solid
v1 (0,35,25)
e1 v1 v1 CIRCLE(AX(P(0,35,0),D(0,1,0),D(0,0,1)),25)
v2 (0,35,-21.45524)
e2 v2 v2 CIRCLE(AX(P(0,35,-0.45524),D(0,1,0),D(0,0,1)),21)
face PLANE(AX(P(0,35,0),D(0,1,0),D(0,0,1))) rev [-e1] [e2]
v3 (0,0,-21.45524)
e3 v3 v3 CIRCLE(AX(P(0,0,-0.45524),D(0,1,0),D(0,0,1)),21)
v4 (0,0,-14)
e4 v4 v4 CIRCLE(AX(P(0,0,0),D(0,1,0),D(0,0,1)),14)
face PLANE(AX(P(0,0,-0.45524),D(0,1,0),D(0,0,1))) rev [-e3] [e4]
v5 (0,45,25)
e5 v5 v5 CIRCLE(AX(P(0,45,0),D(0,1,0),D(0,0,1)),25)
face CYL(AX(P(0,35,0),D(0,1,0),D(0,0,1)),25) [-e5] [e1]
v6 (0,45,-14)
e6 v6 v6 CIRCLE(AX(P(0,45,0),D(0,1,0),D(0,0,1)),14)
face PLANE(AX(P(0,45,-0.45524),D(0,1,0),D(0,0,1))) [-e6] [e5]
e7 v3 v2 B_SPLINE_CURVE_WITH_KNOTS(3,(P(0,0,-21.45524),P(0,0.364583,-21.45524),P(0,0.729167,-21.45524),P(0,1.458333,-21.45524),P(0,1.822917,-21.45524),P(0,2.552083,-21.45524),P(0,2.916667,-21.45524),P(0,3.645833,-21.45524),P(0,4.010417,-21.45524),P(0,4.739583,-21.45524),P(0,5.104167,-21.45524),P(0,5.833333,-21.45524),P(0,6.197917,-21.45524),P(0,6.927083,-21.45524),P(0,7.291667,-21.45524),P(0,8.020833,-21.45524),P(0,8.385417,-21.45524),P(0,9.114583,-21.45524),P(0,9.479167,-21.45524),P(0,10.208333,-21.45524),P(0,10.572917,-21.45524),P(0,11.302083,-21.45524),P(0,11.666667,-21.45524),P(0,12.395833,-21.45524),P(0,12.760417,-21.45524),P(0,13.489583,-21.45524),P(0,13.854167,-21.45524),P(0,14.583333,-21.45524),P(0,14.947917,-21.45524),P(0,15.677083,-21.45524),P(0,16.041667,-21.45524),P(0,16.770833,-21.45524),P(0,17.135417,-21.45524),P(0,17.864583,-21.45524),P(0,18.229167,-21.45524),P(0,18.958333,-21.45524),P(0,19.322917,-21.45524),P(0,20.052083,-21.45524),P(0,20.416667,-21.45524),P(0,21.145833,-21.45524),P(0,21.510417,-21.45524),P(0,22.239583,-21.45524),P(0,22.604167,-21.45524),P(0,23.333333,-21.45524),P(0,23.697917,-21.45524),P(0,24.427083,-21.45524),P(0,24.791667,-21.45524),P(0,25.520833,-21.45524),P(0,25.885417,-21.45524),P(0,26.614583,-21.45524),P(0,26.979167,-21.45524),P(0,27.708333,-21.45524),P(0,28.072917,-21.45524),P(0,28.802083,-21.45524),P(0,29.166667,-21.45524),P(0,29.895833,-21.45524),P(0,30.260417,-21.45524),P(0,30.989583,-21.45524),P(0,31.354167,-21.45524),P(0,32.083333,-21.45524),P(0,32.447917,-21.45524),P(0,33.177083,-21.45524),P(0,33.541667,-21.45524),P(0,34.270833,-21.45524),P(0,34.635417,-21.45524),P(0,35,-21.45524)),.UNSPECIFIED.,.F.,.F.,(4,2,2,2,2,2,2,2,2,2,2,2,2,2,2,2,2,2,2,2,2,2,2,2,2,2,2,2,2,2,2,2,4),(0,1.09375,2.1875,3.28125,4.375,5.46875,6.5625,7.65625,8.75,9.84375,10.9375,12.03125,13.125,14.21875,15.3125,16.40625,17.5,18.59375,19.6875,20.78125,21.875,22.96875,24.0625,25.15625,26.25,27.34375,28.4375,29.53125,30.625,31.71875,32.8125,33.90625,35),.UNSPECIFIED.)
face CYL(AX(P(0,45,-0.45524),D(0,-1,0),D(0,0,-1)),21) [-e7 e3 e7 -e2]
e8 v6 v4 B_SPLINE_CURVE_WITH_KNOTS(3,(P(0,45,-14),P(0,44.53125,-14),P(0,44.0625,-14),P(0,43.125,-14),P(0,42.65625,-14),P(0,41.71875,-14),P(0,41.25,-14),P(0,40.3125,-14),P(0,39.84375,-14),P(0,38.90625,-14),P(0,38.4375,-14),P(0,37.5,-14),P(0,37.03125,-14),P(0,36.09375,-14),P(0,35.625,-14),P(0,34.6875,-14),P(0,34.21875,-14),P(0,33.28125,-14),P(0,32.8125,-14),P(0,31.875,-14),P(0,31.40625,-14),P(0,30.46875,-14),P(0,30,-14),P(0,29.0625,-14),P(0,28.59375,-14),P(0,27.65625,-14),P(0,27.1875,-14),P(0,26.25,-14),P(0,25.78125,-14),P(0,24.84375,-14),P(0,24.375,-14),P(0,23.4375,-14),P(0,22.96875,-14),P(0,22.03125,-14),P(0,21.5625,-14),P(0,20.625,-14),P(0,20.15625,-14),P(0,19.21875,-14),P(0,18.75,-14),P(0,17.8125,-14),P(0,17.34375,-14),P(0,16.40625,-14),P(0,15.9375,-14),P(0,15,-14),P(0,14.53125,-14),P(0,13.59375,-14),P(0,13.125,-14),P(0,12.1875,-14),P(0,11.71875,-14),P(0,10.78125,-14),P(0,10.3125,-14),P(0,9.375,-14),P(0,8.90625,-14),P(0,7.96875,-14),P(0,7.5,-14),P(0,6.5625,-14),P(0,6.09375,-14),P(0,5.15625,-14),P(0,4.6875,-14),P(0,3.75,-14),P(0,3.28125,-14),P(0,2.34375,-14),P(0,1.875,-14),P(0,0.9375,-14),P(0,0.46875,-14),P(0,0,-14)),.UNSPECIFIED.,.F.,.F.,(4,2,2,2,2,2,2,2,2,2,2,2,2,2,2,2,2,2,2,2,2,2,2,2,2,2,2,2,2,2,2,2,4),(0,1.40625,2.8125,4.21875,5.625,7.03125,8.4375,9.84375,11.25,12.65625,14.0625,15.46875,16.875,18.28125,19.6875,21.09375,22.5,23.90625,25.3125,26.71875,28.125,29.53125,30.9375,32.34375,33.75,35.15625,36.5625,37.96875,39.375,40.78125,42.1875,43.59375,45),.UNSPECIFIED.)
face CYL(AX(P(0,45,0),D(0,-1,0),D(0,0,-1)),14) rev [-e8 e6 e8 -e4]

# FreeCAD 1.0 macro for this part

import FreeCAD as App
import Part
import Sketcher
Q = App.Units.Quantity

doc = App.newDocument("Part")
body = doc.addObject("PartDesign::Body", "Body")

sketch1 = doc.addObject("Sketcher::SketchObject", "Sketch")
body.addObject(sketch1)
sketch1.AttachmentSupport = (doc.XZ_Plane, [""])
sketch1.MapMode = "FlatFace"
sketch1.addGeometry([
    Part.Circle(App.Vector(0, -0.45524, 0), App.Vector(0, 0, 1), 21),
    Part.Circle(App.Vector(0, 0, 0), App.Vector(0, 0, 1), 14),
], False)
sketch1.addConstraint([
    Sketcher.Constraint("Coincident", 1, 3, -1, 1),
    Sketcher.Constraint("PointOnObject", 0, 3, -2),
    Sketcher.Constraint("Diameter", 0, Q("42 mm")),
    Sketcher.Constraint("Diameter", 1, Q("28 mm")),
    Sketcher.Constraint("DistanceY", 0, 3, -1, 1, Q("0.45524 mm")),
])
pad1 = doc.addObject("PartDesign::Pad", "Pad")
body.addObject(pad1)
pad1.Profile = sketch1
pad1.Length = 45
pad1.Reversed = True

sketch2 = doc.addObject("Sketcher::SketchObject", "Sketch001")
body.addObject(sketch2)
sketch2.AttachmentSupport = (doc.XZ_Plane, [""])
sketch2.MapMode = "FlatFace"
sketch2.AttachmentOffset = App.Placement(App.Vector(0, 0, -35), App.Rotation())
sketch2.addGeometry([
    Part.Circle(App.Vector(0, 0, 0), App.Vector(0, 0, 1), 25),
    Part.Circle(App.Vector(0, 0, 0), App.Vector(0, 0, 1), 14),
], False)
sketch2.addConstraint([
    Sketcher.Constraint("Coincident", 0, 3, -1, 1),
    Sketcher.Constraint("Coincident", 1, 3, -1, 1),
    Sketcher.Constraint("Diameter", 0, Q("50 mm")),
    Sketcher.Constraint("Diameter", 1, Q("28 mm")),
])
pad2 = doc.addObject("PartDesign::Pad", "Pad001")
body.addObject(pad2)
pad2.Profile = sketch2
pad2.Length = 10
pad2.Reversed = True

doc.recompute()
